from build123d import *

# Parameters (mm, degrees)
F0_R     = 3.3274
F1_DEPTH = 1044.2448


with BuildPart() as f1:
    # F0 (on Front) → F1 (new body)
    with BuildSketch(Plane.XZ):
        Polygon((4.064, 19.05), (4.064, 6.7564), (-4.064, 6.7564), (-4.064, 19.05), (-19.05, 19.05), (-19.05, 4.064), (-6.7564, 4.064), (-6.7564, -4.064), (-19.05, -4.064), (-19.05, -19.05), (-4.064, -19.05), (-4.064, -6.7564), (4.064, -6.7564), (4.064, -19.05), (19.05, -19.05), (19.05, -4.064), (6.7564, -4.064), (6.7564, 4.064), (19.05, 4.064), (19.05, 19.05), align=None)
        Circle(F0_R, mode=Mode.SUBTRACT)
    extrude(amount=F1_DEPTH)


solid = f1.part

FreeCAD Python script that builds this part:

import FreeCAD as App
import Part
import Sketcher
Q = App.Units.Quantity

doc = App.newDocument("Part")
body = doc.addObject("PartDesign::Body", "Body")

# Sketch on XZ plane
sketch1 = doc.addObject("Sketcher::SketchObject", "Sketch")
body.addObject(sketch1)
sketch1.AttachmentSupport = (doc.XZ_Plane, [""])
sketch1.MapMode = "FlatFace"
sketch1.addGeometry([
    Part.LineSegment(App.Vector(4.064, 19.05, 0), App.Vector(4.064, 6.7564, 0)),  # 0
    Part.LineSegment(App.Vector(4.064, 6.7564, 0), App.Vector(-4.064, 6.7564, 0)),  # 1
    Part.LineSegment(App.Vector(-4.064, 6.7564, 0), App.Vector(-4.064, 19.05, 0)),  # 2
    Part.LineSegment(App.Vector(-4.064, 19.05, 0), App.Vector(-19.05, 19.05, 0)),  # 3
    Part.LineSegment(App.Vector(-19.05, 19.05, 0), App.Vector(-19.05, 4.064, 0)),  # 4
    Part.LineSegment(App.Vector(-19.05, 4.064, 0), App.Vector(-6.7564, 4.064, 0)),  # 5
    Part.LineSegment(App.Vector(-6.7564, 4.064, 0), App.Vector(-6.7564, -4.064, 0)),  # 6
    Part.LineSegment(App.Vector(-6.7564, -4.064, 0), App.Vector(-19.05, -4.064, 0)),  # 7
    Part.LineSegment(App.Vector(-19.05, -4.064, 0), App.Vector(-19.05, -19.05, 0)),  # 8
    Part.LineSegment(App.Vector(-19.05, -19.05, 0), App.Vector(-4.064, -19.05, 0)),  # 9
    Part.LineSegment(App.Vector(-4.064, -19.05, 0), App.Vector(-4.064, -6.7564, 0)),  # 10
    Part.LineSegment(App.Vector(-4.064, -6.7564, 0), App.Vector(4.064, -6.7564, 0)),  # 11
    Part.LineSegment(App.Vector(4.064, -6.7564, 0), App.Vector(4.064, -19.05, 0)),  # 12
    Part.LineSegment(App.Vector(4.064, -19.05, 0), App.Vector(19.05, -19.05, 0)),  # 13
    Part.LineSegment(App.Vector(19.05, -19.05, 0), App.Vector(19.05, -4.064, 0)),  # 14
    Part.LineSegment(App.Vector(19.05, -4.064, 0), App.Vector(6.7564, -4.064, 0)),  # 15
    Part.LineSegment(App.Vector(6.7564, -4.064, 0), App.Vector(6.7564, 4.064, 0)),  # 16
    Part.LineSegment(App.Vector(6.7564, 4.064, 0), App.Vector(19.05, 4.064, 0)),  # 17
    Part.LineSegment(App.Vector(19.05, 4.064, 0), App.Vector(19.05, 19.05, 0)),  # 18
    Part.LineSegment(App.Vector(19.05, 19.05, 0), App.Vector(4.064, 19.05, 0)),  # 19
    Part.Circle(App.Vector(0, 0, 0), App.Vector(0, 0, 1), 3.3274),  # 20
], False)
sketch1.addConstraint([
    Sketcher.Constraint("Coincident", 0, 2, 1, 1),
    Sketcher.Constraint("Coincident", 1, 2, 2, 1),
    Sketcher.Constraint("Coincident", 2, 2, 3, 1),
    Sketcher.Constraint("Coincident", 3, 2, 4, 1),
    Sketcher.Constraint("Coincident", 4, 2, 5, 1),
    Sketcher.Constraint("Coincident", 5, 2, 6, 1),
    Sketcher.Constraint("Coincident", 6, 2, 7, 1),
    Sketcher.Constraint("Coincident", 7, 2, 8, 1),
    Sketcher.Constraint("Coincident", 8, 2, 9, 1),
    Sketcher.Constraint("Coincident", 9, 2, 10, 1),
    Sketcher.Constraint("Coincident", 10, 2, 11, 1),
    Sketcher.Constraint("Coincident", 11, 2, 12, 1),
    Sketcher.Constraint("Coincident", 12, 2, 13, 1),
    Sketcher.Constraint("Coincident", 13, 2, 14, 1),
    Sketcher.Constraint("Coincident", 14, 2, 15, 1),
    Sketcher.Constraint("Coincident", 15, 2, 16, 1),
    Sketcher.Constraint("Coincident", 16, 2, 17, 1),
    Sketcher.Constraint("Coincident", 17, 2, 18, 1),
    Sketcher.Constraint("Coincident", 18, 2, 19, 1),
    Sketcher.Constraint("Coincident", 19, 2, 0, 1),
    Sketcher.Constraint("Vertical", 0),
    Sketcher.Constraint("Horizontal", 1),
    Sketcher.Constraint("Vertical", 2),
    Sketcher.Constraint("Horizontal", 3),
    Sketcher.Constraint("Vertical", 4),
    Sketcher.Constraint("Horizontal", 5),
    Sketcher.Constraint("Vertical", 6),
    Sketcher.Constraint("Horizontal", 7),
    Sketcher.Constraint("Vertical", 8),
    Sketcher.Constraint("Horizontal", 9),
    Sketcher.Constraint("Vertical", 10),
    Sketcher.Constraint("Horizontal", 11),
    Sketcher.Constraint("Vertical", 12),
    Sketcher.Constraint("Horizontal", 13),
    Sketcher.Constraint("Vertical", 14),
    Sketcher.Constraint("Horizontal", 15),
    Sketcher.Constraint("Vertical", 16),
    Sketcher.Constraint("Horizontal", 17),
    Sketcher.Constraint("Vertical", 18),
    Sketcher.Constraint("Horizontal", 19),
    Sketcher.Constraint("Coincident", 20, 3, -1, 1),
    Sketcher.Constraint("Symmetric", 0, 2, 10, 2, -1, 1),
    Sketcher.Constraint("Symmetric", 2, 2, 12, 2, -1, 1),
    Sketcher.Constraint("Symmetric", 4, 2, 14, 2, -1, 1),
    Sketcher.Constraint("Symmetric", 6, 2, 16, 2, -1, 1),
    Sketcher.Constraint("Symmetric", 8, 2, 18, 2, -1, 1),
    Sketcher.Constraint("Symmetric", 9, 2, 12, 2, -2),
    Sketcher.Constraint("Symmetric", 7, 2, 14, 2, -2),
    Sketcher.Constraint("Equal", 17, 0),
    Sketcher.Constraint("Equal", 19, 4),
    Sketcher.Constraint("Equal", 11, 6),
    Sketcher.Constraint("Diameter", 20, Q("0.262 in")),
    Sketcher.Constraint("DistanceX", 1, 2, 1, 1, Q("0.32 in")),
    Sketcher.Constraint("DistanceX", 3, 2, 3, 1, Q("0.59 in")),
    Sketcher.Constraint("DistanceX", 5, 1, 5, 2, Q("0.484 in")),
])
pad1 = doc.addObject("PartDesign::Pad", "Pad")
body.addObject(pad1)
pad1.Profile = sketch1
pad1.Length = Q("41.112 in")

doc.recompute()
